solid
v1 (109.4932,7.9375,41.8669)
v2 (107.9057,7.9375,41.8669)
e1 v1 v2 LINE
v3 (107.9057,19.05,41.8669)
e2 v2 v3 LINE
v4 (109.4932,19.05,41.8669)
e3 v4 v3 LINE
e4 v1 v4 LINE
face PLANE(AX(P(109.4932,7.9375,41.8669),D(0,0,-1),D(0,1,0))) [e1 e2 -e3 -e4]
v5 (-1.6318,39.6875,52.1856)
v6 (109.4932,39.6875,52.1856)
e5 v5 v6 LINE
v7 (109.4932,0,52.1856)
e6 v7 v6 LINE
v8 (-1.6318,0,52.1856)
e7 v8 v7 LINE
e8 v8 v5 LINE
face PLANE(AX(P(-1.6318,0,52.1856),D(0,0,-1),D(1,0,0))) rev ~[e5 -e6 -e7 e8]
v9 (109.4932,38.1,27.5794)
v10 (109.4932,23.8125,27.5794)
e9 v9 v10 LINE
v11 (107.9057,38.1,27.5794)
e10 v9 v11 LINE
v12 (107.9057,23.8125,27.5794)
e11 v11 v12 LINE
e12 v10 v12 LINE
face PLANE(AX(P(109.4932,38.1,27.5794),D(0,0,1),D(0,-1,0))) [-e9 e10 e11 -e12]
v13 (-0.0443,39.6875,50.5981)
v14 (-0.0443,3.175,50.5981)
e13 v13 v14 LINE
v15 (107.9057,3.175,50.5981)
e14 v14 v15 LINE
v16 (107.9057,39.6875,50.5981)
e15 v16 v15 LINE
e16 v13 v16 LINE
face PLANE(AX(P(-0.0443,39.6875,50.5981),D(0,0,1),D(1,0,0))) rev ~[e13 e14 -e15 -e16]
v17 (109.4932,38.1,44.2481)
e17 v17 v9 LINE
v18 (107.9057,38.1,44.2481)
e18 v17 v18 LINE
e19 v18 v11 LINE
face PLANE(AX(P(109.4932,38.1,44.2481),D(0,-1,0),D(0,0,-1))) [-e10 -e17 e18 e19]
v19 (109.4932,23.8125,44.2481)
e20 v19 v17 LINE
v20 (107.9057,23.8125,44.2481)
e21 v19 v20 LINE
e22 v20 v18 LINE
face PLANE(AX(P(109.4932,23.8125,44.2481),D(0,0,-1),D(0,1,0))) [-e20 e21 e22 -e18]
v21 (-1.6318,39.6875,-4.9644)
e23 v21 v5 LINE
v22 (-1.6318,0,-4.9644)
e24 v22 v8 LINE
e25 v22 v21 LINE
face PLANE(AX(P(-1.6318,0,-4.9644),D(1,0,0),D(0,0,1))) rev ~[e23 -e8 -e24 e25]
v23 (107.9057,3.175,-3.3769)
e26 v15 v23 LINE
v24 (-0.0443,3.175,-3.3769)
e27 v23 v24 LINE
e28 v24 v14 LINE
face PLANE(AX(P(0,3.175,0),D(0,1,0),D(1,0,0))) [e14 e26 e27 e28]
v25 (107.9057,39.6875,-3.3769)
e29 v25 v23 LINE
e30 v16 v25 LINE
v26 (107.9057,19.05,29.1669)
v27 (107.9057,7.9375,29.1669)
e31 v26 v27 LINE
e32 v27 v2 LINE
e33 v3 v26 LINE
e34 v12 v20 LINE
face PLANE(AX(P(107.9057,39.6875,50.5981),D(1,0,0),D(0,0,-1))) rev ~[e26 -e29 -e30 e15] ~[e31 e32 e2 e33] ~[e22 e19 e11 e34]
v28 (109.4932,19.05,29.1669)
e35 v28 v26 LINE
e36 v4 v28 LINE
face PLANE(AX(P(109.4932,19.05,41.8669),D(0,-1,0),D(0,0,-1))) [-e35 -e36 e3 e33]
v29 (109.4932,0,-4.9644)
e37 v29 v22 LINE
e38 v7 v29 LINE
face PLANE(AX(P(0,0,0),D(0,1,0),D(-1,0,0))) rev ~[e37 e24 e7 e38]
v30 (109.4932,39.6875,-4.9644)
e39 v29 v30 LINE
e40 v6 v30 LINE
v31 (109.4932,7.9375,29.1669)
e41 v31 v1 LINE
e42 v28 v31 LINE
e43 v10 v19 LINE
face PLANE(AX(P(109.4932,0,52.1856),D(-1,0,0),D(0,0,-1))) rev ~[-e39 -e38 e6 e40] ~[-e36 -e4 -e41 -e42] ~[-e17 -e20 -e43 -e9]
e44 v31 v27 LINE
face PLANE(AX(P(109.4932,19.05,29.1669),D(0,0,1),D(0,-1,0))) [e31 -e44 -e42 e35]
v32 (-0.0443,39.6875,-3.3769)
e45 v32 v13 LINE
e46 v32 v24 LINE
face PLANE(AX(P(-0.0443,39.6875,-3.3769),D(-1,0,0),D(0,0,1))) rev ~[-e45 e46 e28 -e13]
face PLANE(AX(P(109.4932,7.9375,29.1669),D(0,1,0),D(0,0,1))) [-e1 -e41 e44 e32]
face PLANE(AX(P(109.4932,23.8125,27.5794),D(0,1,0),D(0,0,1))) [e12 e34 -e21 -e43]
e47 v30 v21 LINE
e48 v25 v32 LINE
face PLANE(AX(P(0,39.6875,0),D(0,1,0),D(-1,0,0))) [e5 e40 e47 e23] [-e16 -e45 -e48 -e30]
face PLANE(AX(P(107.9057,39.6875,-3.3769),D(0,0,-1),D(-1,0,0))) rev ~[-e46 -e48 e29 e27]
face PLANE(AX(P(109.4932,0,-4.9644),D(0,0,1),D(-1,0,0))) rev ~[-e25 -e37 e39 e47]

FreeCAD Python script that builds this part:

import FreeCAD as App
import Part
import Sketcher

V = App.Vector
Q = App.Units.Quantity


def add_polygon(sketch, points):
    """Adds a closed chain of lines whose ends are joined by coincident constraints."""
    first, n = sketch.GeometryCount, len(points)
    for a, b in zip(points, points[1:] + points[:1]):
        sketch.addGeometry(Part.LineSegment(App.Vector(*a, 0), App.Vector(*b, 0)), False)
    for i in range(n):
        sketch.addConstraint(Sketcher.Constraint("Coincident", first + i, 2, first + (i + 1) % n, 1))

doc = App.newDocument("Part")
body = doc.addObject("PartDesign::Body", "Body")

sketch1 = body.newObject("Sketcher::SketchObject", "Sketch")
sketch1.AttachmentSupport = (doc.getObject("XZ_Plane"), [""])
sketch1.MapMode = "FlatFace"
add_polygon(sketch1, [(-1.6318, -4.9644), (-1.6318, 52.1856), (109.4932, 52.1856), (109.4932, -4.9644)])
sketch1.addConstraint([
    Sketcher.Constraint("Vertical", 0),
    Sketcher.Constraint("Horizontal", 1),
    Sketcher.Constraint("Vertical", 2),
    Sketcher.Constraint("Horizontal", 3),
    Sketcher.Constraint("DistanceY", 0, 1, 0, 2, Q("2.25 in")),
    Sketcher.Constraint("DistanceX", 1, 1, 1, 2, Q("4.375 in")),
    Sketcher.Constraint("DistanceX", 0, 2, -1, 1, 1.6318),
    Sketcher.Constraint("DistanceY", -1, 1, 0, 2, 52.1856),
])
pad1 = body.newObject("PartDesign::Pad", "Pad")
pad1.Profile = sketch1
pad1.Length = Q("1.5625 in")
pad1.Reversed = True

sketch2 = body.newObject("Sketcher::SketchObject", "Sketch001")
sketch2.AttachmentSupport = (doc.getObject("XZ_Plane"), [""])
sketch2.MapMode = "FlatFace"
sketch2.AttachmentOffset = App.Placement(V(0, 0, -1.5625 * 25.4), App.Rotation())
add_polygon(sketch2, [(-0.0443, -3.3769), (-0.0443, 50.5981), (107.9057, 50.5981), (107.9057, -3.3769)])
sketch2.addConstraint([
    Sketcher.Constraint("Vertical", 0),
    Sketcher.Constraint("Horizontal", 1),
    Sketcher.Constraint("Vertical", 2),
    Sketcher.Constraint("Horizontal", 3),
    Sketcher.Constraint("DistanceX", 1, 1, 1, 2, Q("4.25 in")),
    Sketcher.Constraint("DistanceY", 0, 1, 0, 2, Q("2.125 in")),
    Sketcher.Constraint("DistanceX", 0, 2, -1, 1, 0.0443),
    Sketcher.Constraint("DistanceY", -1, 1, 0, 2, 50.598),
])
pocket1 = body.newObject("PartDesign::Pocket", "Pocket")
pocket1.Profile = sketch2
pocket1.Length = Q("1.4375 in")
pocket1.Reversed = True

sketch3 = body.newObject("Sketcher::SketchObject", "Sketch002")
sketch3.AttachmentSupport = (doc.getObject("YZ_Plane"), [""])
sketch3.MapMode = "FlatFace"
sketch3.AttachmentOffset = App.Placement(V(0, 0, 109.4932), App.Rotation())
add_polygon(sketch3, [(19.05, 29.1669), (19.05, 41.8669), (7.9375, 41.8669), (7.9375, 29.1669)])
add_polygon(sketch3, [(38.1, 27.5794), (38.1, 44.2481), (23.8125, 44.2481), (23.8125, 27.5794)])
sketch3.addConstraint([
    Sketcher.Constraint("Vertical", 0),
    Sketcher.Constraint("Horizontal", 1),
    Sketcher.Constraint("Vertical", 2),
    Sketcher.Constraint("Horizontal", 3),
    Sketcher.Constraint("Vertical", 4),
    Sketcher.Constraint("Horizontal", 5),
    Sketcher.Constraint("Vertical", 6),
    Sketcher.Constraint("Horizontal", 7),
    Sketcher.Constraint("DistanceY", 0, 1, 0, 2, Q("0.5 in")),
    Sketcher.Constraint("DistanceX", 1, 2, 1, 1, Q("0.4375 in")),
    Sketcher.Constraint("DistanceX", 5, 2, 5, 1, Q("0.5625 in")),
    Sketcher.Constraint("DistanceY", 4, 1, 4, 2, Q("0.656248 in")),
    Sketcher.Constraint("DistanceX", 0, 2, 5, 2, Q("0.1875 in")),
    Sketcher.Constraint("DistanceY", 6, 2, 3, 2, Q("0.0625 in")),
    Sketcher.Constraint("DistanceX", -1, 1, 4, 2, Q("1.5 in")),
    Sketcher.Constraint("DistanceY", -1, 1, 0, 2, Q("1.6483 in")),
])
pocket2 = body.newObject("PartDesign::Pocket", "Pocket001")
pocket2.Profile = sketch3
pocket2.Length = Q("0.0625 in")

doc.recompute()
